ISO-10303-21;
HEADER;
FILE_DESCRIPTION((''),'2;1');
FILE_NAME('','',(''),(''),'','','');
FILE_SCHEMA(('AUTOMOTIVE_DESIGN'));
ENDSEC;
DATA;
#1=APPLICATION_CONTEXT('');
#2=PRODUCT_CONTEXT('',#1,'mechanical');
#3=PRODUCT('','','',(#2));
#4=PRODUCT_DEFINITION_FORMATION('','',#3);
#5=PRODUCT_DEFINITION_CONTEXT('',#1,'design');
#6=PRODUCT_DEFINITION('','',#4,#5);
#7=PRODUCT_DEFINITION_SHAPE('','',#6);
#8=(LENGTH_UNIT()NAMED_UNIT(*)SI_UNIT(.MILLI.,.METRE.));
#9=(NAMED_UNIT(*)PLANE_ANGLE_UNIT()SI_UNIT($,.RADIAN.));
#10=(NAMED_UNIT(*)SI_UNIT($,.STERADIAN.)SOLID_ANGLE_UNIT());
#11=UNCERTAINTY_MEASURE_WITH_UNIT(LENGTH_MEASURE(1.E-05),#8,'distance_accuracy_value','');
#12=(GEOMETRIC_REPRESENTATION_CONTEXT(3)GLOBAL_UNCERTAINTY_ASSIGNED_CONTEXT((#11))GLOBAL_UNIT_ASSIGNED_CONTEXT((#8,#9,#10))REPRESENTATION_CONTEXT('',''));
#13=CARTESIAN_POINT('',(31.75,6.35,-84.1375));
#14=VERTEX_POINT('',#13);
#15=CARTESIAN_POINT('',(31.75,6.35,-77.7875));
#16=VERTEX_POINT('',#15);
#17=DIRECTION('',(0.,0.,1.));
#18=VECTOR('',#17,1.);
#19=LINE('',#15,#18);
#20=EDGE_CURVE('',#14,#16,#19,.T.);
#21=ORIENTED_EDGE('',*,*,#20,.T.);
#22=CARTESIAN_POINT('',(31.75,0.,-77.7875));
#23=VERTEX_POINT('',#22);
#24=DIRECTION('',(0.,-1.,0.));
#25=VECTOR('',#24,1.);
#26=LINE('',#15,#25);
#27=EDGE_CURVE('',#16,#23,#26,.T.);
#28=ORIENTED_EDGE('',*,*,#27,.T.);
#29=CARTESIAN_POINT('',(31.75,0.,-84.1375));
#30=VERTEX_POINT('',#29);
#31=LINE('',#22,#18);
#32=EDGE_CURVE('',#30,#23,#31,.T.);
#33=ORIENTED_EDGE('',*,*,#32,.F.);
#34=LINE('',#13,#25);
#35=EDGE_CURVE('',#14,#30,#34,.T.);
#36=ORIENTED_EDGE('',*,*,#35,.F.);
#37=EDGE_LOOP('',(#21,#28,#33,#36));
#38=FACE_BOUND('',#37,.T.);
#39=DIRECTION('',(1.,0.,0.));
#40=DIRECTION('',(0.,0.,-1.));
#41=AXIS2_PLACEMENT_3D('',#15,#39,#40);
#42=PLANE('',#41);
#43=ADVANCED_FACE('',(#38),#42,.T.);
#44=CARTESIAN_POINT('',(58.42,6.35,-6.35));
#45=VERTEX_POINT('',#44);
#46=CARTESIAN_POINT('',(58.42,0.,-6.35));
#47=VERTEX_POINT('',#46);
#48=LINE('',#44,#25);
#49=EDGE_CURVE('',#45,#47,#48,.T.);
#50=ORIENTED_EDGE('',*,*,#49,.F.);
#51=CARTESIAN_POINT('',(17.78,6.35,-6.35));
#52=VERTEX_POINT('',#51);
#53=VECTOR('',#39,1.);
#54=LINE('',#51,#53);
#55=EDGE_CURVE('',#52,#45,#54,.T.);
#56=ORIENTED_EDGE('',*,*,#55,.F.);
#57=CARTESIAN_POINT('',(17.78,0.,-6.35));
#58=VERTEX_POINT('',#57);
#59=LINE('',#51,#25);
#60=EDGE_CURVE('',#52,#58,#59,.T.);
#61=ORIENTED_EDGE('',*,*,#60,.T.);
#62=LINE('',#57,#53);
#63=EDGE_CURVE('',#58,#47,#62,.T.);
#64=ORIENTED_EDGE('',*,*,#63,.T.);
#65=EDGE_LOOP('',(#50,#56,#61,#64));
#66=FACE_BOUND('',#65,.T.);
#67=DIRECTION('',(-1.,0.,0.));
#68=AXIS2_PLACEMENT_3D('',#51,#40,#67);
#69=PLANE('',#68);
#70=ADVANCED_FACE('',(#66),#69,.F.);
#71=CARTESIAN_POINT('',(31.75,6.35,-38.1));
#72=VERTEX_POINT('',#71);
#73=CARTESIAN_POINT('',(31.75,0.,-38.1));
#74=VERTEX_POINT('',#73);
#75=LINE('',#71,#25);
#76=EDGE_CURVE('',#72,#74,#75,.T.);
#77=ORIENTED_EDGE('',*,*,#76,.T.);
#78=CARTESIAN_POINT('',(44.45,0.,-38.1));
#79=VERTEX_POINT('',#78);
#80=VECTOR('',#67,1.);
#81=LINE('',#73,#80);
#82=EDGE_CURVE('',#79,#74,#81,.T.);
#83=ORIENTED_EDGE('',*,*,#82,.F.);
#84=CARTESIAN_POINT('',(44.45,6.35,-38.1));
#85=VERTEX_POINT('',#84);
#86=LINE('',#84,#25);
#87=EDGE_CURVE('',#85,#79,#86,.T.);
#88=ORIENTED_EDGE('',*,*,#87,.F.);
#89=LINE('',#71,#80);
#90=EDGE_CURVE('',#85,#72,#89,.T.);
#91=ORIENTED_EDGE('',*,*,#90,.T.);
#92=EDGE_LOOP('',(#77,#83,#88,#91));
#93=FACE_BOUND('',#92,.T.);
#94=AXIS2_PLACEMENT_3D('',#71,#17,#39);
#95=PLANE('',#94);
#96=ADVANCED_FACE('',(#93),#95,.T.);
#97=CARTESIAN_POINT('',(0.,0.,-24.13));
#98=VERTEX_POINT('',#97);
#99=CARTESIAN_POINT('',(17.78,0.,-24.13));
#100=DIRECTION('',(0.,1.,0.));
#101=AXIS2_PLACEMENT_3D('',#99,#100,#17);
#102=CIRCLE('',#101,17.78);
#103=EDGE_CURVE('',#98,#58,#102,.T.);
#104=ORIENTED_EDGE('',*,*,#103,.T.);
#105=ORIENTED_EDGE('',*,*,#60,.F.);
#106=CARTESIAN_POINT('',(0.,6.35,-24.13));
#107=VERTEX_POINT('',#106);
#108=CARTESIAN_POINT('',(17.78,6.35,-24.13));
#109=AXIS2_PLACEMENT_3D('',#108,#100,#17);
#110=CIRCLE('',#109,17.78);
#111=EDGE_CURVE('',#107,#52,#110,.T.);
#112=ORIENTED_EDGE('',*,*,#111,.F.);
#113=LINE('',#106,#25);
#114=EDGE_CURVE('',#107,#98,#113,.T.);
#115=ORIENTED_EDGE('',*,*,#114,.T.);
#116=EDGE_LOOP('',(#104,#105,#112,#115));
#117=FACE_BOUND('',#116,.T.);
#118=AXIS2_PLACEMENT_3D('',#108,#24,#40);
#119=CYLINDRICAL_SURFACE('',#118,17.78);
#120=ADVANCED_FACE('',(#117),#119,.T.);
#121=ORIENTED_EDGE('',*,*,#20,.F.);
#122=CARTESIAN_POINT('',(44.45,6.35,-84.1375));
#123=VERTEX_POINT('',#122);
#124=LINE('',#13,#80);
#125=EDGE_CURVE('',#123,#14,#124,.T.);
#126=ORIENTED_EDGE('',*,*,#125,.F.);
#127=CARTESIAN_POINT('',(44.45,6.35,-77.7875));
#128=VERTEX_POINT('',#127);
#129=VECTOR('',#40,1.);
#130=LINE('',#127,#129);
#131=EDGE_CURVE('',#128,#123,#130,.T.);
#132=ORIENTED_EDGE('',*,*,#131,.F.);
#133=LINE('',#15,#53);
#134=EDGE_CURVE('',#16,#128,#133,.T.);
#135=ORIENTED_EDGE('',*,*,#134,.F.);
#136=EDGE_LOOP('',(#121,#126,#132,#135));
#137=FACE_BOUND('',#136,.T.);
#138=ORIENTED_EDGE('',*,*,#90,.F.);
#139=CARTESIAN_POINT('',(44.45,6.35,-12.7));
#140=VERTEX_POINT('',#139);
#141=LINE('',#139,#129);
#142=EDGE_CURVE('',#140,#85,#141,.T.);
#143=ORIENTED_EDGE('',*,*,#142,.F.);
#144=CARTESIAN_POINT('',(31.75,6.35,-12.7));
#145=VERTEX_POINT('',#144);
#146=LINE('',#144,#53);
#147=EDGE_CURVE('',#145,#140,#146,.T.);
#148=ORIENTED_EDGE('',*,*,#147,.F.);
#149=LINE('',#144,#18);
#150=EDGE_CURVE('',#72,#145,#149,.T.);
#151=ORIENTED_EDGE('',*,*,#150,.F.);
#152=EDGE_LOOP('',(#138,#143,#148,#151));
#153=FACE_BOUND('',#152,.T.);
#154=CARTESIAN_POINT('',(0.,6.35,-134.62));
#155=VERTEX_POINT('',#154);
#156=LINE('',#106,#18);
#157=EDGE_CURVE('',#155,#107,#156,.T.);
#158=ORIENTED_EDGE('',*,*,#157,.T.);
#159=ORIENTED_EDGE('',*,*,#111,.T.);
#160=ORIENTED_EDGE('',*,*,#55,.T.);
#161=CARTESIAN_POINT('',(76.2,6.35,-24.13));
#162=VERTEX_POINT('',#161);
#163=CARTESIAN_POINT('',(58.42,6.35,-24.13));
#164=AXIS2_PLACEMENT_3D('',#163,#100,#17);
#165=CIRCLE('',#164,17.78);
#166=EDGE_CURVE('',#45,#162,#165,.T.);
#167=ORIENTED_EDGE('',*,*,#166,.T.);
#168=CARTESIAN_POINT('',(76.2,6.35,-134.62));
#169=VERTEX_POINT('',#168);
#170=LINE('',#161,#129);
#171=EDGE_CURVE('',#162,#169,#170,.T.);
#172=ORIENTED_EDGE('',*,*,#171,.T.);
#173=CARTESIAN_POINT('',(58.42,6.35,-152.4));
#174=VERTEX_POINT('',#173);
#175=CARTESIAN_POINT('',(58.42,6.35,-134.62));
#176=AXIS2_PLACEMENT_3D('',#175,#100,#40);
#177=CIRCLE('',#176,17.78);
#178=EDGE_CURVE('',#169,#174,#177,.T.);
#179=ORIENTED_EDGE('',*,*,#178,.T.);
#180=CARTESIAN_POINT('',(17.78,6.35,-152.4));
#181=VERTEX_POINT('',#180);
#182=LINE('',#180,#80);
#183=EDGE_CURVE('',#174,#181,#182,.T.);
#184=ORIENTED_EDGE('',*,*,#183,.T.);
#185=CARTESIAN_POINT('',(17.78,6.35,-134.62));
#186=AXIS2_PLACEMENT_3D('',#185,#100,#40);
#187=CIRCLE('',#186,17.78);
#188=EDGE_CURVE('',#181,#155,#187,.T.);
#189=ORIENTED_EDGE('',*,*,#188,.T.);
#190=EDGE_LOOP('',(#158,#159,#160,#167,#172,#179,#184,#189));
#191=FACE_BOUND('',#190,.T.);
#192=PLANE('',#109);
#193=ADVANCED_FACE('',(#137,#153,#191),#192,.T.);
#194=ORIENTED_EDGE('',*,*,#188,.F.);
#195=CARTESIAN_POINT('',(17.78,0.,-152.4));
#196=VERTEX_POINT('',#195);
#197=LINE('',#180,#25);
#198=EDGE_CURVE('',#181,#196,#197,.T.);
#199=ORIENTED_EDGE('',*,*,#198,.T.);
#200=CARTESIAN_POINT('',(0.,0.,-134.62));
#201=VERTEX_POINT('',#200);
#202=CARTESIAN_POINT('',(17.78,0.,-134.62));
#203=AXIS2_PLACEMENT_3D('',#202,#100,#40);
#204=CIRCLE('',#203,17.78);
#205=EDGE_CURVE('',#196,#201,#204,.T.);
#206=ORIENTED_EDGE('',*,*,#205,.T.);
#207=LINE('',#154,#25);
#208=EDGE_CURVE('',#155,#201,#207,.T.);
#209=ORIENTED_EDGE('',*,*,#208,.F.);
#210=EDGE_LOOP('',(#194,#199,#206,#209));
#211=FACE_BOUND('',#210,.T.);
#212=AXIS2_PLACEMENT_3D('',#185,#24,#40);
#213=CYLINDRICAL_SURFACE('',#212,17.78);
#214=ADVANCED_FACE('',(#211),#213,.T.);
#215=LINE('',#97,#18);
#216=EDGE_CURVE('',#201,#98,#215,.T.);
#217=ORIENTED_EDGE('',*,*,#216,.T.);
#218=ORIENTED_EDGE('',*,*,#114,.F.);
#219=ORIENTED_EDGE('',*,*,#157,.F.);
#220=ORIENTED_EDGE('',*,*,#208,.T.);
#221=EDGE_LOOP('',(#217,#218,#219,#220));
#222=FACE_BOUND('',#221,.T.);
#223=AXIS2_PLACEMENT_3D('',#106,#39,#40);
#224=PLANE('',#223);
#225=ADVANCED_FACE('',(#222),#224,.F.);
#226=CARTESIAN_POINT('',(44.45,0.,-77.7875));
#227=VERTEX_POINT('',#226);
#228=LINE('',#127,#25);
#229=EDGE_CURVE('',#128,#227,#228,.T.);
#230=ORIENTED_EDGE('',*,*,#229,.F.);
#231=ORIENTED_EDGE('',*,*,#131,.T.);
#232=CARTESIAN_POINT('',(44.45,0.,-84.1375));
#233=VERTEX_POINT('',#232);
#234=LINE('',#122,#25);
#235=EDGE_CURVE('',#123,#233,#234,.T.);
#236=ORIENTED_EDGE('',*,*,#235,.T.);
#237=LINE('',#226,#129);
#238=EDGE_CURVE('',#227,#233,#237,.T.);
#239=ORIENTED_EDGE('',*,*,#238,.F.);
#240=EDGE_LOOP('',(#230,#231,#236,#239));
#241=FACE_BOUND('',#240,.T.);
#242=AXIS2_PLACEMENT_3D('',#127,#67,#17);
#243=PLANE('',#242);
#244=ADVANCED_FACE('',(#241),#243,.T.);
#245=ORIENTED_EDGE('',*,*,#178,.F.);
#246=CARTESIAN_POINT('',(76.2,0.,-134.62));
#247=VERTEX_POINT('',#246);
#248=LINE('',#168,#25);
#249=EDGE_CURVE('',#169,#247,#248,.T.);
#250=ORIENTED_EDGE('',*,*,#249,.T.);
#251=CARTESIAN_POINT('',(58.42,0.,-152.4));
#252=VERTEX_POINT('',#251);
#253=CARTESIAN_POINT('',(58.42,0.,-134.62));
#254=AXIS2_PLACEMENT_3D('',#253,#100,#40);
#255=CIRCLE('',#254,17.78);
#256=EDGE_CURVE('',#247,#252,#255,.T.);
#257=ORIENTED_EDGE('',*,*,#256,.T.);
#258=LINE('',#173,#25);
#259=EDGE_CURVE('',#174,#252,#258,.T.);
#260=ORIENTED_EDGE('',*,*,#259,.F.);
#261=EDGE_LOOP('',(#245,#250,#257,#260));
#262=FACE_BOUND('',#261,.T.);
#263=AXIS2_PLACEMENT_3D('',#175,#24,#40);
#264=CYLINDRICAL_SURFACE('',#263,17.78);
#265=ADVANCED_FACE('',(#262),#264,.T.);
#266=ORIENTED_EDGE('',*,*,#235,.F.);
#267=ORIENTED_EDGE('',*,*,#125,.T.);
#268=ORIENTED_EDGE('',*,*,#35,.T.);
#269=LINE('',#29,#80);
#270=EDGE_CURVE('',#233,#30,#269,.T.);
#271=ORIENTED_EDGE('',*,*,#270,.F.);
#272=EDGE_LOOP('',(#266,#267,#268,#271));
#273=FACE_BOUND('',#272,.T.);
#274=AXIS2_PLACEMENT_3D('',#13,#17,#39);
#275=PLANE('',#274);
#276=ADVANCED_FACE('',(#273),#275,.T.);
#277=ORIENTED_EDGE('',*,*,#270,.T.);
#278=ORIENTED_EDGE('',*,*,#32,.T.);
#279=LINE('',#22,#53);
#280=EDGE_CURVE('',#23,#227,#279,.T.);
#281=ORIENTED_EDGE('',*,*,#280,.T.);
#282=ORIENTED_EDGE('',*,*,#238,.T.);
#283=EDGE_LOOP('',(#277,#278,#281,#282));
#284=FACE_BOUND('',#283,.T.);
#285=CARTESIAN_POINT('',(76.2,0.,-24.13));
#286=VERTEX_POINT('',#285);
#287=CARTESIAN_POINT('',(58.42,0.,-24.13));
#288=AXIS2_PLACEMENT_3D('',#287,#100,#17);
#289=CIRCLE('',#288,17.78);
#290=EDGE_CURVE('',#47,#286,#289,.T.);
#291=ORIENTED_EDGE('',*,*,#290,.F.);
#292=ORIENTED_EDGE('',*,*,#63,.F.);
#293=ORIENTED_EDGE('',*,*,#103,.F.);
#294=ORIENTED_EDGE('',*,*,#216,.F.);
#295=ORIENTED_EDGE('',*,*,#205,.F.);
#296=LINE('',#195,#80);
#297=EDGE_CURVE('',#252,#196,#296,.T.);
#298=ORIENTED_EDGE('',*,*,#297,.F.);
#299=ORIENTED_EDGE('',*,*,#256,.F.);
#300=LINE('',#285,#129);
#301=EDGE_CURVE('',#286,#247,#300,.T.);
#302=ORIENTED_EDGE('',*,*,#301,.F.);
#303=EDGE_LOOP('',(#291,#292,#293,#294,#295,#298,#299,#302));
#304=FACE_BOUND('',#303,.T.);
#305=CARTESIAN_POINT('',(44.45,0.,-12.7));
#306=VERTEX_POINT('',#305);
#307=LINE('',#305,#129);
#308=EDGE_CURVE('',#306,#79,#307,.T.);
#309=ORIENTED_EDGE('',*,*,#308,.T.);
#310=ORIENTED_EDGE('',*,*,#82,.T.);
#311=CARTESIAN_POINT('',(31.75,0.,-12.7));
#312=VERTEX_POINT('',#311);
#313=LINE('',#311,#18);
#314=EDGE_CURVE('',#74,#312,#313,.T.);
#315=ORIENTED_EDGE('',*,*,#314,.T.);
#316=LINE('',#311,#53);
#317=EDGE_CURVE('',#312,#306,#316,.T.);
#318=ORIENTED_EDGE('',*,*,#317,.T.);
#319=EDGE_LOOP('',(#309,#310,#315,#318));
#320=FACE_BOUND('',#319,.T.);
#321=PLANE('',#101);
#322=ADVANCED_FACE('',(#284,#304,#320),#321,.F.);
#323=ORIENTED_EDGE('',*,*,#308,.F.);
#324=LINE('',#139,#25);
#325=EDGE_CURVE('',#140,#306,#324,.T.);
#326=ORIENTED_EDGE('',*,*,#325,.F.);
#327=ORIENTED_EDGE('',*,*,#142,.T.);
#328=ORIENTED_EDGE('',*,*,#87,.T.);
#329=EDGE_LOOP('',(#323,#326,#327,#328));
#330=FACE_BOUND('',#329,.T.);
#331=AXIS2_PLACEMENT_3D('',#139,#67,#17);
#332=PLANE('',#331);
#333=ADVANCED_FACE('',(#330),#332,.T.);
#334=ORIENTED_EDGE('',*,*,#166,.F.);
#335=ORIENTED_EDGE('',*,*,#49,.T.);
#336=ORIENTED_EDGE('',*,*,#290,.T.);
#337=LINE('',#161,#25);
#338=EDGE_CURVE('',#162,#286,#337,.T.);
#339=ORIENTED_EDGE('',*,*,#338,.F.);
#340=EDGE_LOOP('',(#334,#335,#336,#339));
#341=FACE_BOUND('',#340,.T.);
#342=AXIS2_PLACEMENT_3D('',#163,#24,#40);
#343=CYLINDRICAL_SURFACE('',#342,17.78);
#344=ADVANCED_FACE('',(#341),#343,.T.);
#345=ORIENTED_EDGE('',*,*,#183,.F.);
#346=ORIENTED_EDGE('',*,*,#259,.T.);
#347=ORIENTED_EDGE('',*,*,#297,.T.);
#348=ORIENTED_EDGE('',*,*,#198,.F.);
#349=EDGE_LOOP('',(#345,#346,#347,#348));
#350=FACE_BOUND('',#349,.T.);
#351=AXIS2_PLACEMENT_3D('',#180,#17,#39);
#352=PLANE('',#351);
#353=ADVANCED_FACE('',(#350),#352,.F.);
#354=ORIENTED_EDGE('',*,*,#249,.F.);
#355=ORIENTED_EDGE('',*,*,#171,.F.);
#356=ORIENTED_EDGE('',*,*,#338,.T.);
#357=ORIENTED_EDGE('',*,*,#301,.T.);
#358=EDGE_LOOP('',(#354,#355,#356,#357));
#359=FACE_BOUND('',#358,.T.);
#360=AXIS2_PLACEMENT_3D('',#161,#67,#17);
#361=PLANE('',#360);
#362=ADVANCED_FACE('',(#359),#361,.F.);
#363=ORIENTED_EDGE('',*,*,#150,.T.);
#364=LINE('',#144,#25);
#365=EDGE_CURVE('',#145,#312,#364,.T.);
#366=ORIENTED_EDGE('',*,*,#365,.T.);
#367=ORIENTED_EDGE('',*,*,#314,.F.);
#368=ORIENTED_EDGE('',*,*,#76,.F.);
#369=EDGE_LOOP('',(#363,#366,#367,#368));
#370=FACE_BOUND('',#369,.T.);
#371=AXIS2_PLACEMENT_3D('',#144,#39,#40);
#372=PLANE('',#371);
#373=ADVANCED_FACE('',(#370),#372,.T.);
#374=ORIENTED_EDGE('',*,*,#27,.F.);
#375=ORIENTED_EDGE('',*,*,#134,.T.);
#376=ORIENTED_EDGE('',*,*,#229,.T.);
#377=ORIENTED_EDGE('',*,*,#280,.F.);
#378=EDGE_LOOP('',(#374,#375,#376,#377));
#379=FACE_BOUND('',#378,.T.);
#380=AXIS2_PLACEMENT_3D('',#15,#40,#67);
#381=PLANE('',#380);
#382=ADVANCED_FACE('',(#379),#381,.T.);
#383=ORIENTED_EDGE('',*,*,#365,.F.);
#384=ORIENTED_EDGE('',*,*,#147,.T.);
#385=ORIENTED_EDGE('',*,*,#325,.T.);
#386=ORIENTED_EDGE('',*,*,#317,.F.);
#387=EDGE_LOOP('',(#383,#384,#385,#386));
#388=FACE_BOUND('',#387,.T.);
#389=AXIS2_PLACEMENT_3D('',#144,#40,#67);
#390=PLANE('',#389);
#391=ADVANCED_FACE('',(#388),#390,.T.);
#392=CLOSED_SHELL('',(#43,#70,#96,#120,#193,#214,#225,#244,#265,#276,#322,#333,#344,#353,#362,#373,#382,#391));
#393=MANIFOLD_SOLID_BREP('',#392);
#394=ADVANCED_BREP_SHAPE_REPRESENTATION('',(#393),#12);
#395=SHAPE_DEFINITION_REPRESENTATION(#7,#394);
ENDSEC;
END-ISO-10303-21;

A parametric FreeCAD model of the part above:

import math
import FreeCAD as App
import Part
import Sketcher
Q = App.Units.Quantity

doc = App.newDocument("Part")
body = doc.addObject("PartDesign::Body", "Body")

# Sketch on XZ plane
sketch1 = body.newObject("Sketcher::SketchObject", "Sketch")
sketch1.AttachmentSupport = (doc.getObject("XZ_Plane"), [""])
sketch1.MapMode = "FlatFace"
sketch1.addGeometry([
    Part.LineSegment(App.Vector(0, -135, 0), App.Vector(0, -24, 0)),  # 0
    Part.ArcOfCircle(Part.Circle(App.Vector(18, -24, 0), App.Vector(0, 0, 1), 18), math.radians(90), math.radians(180)),  # 1
    Part.LineSegment(App.Vector(18, -6, 0), App.Vector(58, -6, 0)),  # 2
    Part.ArcOfCircle(Part.Circle(App.Vector(58, -24, 0), App.Vector(0, 0, 1), 18), math.radians(0), math.radians(90)),  # 3
    Part.LineSegment(App.Vector(76, -24, 0), App.Vector(76, -135, 0)),  # 4
    Part.ArcOfCircle(Part.Circle(App.Vector(58, -135, 0), App.Vector(0, 0, 1), 18), math.radians(-90), math.radians(0)),  # 5
    Part.LineSegment(App.Vector(58, -152, 0), App.Vector(18, -152, 0)),  # 6
    Part.ArcOfCircle(Part.Circle(App.Vector(18, -135, 0), App.Vector(0, 0, 1), 18), math.radians(-180), math.radians(-90)),  # 7
    Part.LineSegment(App.Vector(32, -13, 0), App.Vector(32, -38, 0)),  # 8
    Part.LineSegment(App.Vector(32, -38, 0), App.Vector(44, -38, 0)),  # 9
    Part.LineSegment(App.Vector(44, -38, 0), App.Vector(44, -13, 0)),  # 10
    Part.LineSegment(App.Vector(44, -13, 0), App.Vector(32, -13, 0)),  # 11
    Part.LineSegment(App.Vector(32, -78, 0), App.Vector(32, -84, 0)),  # 12
    Part.LineSegment(App.Vector(32, -84, 0), App.Vector(44, -84, 0)),  # 13
    Part.LineSegment(App.Vector(44, -84, 0), App.Vector(44, -78, 0)),  # 14
    Part.LineSegment(App.Vector(44, -78, 0), App.Vector(32, -78, 0)),  # 15
], False)
sketch1.addConstraint([
    Sketcher.Constraint("Tangent", 0, 2, 1, 2),
    Sketcher.Constraint("Tangent", 1, 1, 2, 1),
    Sketcher.Constraint("Tangent", 2, 2, 3, 2),
    Sketcher.Constraint("Tangent", 3, 1, 4, 1),
    Sketcher.Constraint("Tangent", 4, 2, 5, 2),
    Sketcher.Constraint("Tangent", 5, 1, 6, 1),
    Sketcher.Constraint("Tangent", 6, 2, 7, 2),
    Sketcher.Constraint("Tangent", 7, 1, 0, 1),
    Sketcher.Constraint("Coincident", 8, 2, 9, 1),
    Sketcher.Constraint("Coincident", 9, 2, 10, 1),
    Sketcher.Constraint("Coincident", 10, 2, 11, 1),
    Sketcher.Constraint("Coincident", 11, 2, 8, 1),
    Sketcher.Constraint("Coincident", 12, 2, 13, 1),
    Sketcher.Constraint("Coincident", 13, 2, 14, 1),
    Sketcher.Constraint("Coincident", 14, 2, 15, 1),
    Sketcher.Constraint("Coincident", 15, 2, 12, 1),
    Sketcher.Constraint("Vertical", 0),
    Sketcher.Constraint("Horizontal", 2),
    Sketcher.Constraint("Vertical", 4),
    Sketcher.Constraint("Horizontal", 6),
    Sketcher.Constraint("Vertical", 8),
    Sketcher.Constraint("Horizontal", 9),
    Sketcher.Constraint("Vertical", 10),
    Sketcher.Constraint("Horizontal", 11),
    Sketcher.Constraint("Vertical", 12),
    Sketcher.Constraint("Horizontal", 13),
    Sketcher.Constraint("Vertical", 14),
    Sketcher.Constraint("Horizontal", 15),
    Sketcher.Constraint("Equal", 1, 3),
    Sketcher.Constraint("Equal", 3, 5),
    Sketcher.Constraint("Equal", 5, 7),
    Sketcher.Constraint("PointOnObject", 0, 2, -2),
    Sketcher.Constraint("Vertical", 11, 2, 12, 2),
    Sketcher.Constraint("Vertical", 10, 2, 13, 2),
    Sketcher.Constraint("Radius", 1, Q("0.7 in")),
    Sketcher.Constraint("DistanceY", 8, 2, 8, 1, Q("1 in")),
    Sketcher.Constraint("DistanceX", 2, 1, 2, 2, Q("1.6 in")),
    Sketcher.Constraint("DistanceX", 9, 1, 9, 2, Q("0.5 in")),
    Sketcher.Constraint("DistanceY", 5, 1, -1, 1, Q("6 in")),
    Sketcher.Constraint("DistanceY", 0, 1, 0, 2, Q("4.35 in")),
    Sketcher.Constraint("DistanceY", 12, 2, 12, 1, Q("0.25 in")),
    Sketcher.Constraint("DistanceY", 8, 2, -1, 1, Q("1.5 in")),
    Sketcher.Constraint("DistanceX", -1, 1, 8, 2, Q("1.25 in")),
    Sketcher.Constraint("DistanceY", 12, 2, -1, 1, Q("3.3125 in")),
])
pad1 = body.newObject("PartDesign::Pad", "Pad")
pad1.Profile = sketch1
pad1.Length = Q("0.25 in")
pad1.Reversed = True

doc.recompute()
